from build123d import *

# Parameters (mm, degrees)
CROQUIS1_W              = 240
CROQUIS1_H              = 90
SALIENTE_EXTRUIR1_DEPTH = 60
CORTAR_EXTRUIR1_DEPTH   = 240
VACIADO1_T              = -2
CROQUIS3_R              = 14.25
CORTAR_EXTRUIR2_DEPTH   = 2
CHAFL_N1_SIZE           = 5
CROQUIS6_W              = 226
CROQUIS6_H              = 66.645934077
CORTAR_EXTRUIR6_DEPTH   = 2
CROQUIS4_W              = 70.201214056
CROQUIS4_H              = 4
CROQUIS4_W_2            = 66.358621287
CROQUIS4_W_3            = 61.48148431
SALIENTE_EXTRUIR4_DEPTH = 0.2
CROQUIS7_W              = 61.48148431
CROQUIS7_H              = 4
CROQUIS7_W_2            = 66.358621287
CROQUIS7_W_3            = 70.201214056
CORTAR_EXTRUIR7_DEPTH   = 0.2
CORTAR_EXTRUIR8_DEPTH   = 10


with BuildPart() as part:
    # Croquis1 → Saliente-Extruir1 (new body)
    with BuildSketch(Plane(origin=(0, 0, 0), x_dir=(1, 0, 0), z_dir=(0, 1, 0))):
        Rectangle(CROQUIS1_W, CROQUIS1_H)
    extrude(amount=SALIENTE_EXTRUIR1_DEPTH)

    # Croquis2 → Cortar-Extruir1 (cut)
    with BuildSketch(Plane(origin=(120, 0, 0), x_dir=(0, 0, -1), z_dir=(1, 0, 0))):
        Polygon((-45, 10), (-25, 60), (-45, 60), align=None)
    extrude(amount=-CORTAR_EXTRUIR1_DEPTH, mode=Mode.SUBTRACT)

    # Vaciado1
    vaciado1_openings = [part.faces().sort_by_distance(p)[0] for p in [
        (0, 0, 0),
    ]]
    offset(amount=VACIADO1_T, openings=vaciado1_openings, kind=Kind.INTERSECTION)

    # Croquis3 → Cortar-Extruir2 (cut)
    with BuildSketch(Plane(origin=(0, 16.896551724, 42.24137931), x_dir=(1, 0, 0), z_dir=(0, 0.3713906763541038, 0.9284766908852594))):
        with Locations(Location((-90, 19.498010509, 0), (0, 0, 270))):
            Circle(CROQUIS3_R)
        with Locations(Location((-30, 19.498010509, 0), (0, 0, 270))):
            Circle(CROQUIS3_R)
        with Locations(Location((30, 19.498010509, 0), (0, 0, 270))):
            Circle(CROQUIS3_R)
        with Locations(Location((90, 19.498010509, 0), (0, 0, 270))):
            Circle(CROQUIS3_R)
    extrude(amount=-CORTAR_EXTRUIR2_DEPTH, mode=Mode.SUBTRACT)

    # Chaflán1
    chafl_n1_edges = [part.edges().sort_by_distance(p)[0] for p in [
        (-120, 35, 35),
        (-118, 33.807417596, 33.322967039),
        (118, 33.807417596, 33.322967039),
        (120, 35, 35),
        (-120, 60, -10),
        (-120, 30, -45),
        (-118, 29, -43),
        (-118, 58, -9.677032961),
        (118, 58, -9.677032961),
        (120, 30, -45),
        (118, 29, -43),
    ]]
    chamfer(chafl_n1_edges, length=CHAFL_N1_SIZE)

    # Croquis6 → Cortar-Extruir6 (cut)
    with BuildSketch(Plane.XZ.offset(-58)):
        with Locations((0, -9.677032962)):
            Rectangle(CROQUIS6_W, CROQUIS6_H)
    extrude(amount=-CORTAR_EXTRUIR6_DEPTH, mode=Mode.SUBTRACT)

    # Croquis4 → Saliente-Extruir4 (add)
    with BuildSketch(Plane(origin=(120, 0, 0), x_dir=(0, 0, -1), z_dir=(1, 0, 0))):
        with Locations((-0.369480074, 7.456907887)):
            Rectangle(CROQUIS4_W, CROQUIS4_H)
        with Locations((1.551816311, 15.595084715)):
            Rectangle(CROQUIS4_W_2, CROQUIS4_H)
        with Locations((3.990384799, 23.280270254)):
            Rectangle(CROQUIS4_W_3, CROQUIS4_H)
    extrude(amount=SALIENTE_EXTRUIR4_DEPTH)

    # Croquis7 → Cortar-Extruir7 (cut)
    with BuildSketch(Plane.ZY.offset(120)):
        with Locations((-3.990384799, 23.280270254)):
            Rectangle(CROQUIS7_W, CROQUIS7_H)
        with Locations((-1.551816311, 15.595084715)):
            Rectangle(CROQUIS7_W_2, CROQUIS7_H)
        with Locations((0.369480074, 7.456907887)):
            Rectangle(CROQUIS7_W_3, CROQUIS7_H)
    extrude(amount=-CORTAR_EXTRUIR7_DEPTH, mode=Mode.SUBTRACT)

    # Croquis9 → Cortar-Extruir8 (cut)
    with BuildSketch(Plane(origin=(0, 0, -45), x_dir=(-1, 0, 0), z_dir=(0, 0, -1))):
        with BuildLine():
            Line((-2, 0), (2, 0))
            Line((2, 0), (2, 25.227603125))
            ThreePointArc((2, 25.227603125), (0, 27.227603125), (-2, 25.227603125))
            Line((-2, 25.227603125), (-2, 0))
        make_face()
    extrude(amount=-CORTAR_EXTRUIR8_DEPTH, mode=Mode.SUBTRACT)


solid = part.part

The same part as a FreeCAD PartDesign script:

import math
import FreeCAD as App
import Part
import Sketcher
from FreeCAD import Vector


def edges_at(feature, points):
    """Names of the edges that pass closest to the given points."""
    edges = feature.Shape.Edges
    near = lambda p: min(range(len(edges)), key=lambda i: edges[i].distToShape(Part.Vertex(*p))[0])
    return sorted({f"Edge{near(p) + 1}" for p in points})


def faces_at(feature, points):
    """Names of the faces that lie closest to the given points."""
    faces = feature.Shape.Faces
    near = lambda p: min(range(len(faces)), key=lambda i: faces[i].distToShape(Part.Vertex(*p))[0])
    return sorted({f"Face{near(p) + 1}" for p in points})


def add_polygon(sketch, points):
    """Adds a closed chain of lines whose ends are joined by coincident constraints."""
    first, n = sketch.GeometryCount, len(points)
    for a, b in zip(points, points[1:] + points[:1]):
        sketch.addGeometry(Part.LineSegment(App.Vector(*a, 0), App.Vector(*b, 0)), False)
    for i in range(n):
        sketch.addConstraint(Sketcher.Constraint("Coincident", first + i, 2, first + (i + 1) % n, 1))

doc = App.newDocument("Part")
body = doc.addObject("PartDesign::Body", "Body")

sketch1 = doc.addObject("Sketcher::SketchObject", "Sketch")
body.addObject(sketch1)
sketch1.AttachmentSupport = (doc.XZ_Plane, [""])
sketch1.MapMode = "FlatFace"
add_polygon(sketch1, [(-120, -45), (-120, 45), (120, 45), (120, -45)])
sketch1.addConstraint(Sketcher.Constraint("Vertical", 0))
sketch1.addConstraint(Sketcher.Constraint("Horizontal", 1))
sketch1.addConstraint(Sketcher.Constraint("Vertical", 2))
sketch1.addConstraint(Sketcher.Constraint("Horizontal", 3))
sketch1.addConstraint(Sketcher.Constraint("Symmetric", 0, 2, 2, 2, -1, 1))
sketch1.addConstraint(Sketcher.Constraint("DistanceX", 1, 1, 1, 2, 240.0))
sketch1.addConstraint(Sketcher.Constraint("DistanceY", 0, 1, 0, 2, 90.0))
pad1 = doc.addObject("PartDesign::Pad", "Pad")
body.addObject(pad1)
pad1.Profile = sketch1
pad1.Length = 60
pad1.Reversed = True

sketch2 = doc.addObject("Sketcher::SketchObject", "Sketch001")
body.addObject(sketch2)
sketch2.AttachmentSupport = (doc.YZ_Plane, [""])
sketch2.MapMode = "FlatFace"
sketch2.AttachmentOffset = App.Placement(Vector(0, 0, 120), App.Rotation())
add_polygon(sketch2, [(10, 45), (60, 25), (60, 45)])
sketch2.addConstraint(Sketcher.Constraint("Vertical", 1))
sketch2.addConstraint(Sketcher.Constraint("Horizontal", 2))
sketch2.addConstraint(Sketcher.Constraint("DistanceX", 2, 2, 2, 1, 50.0))
sketch2.addConstraint(Sketcher.Constraint("DistanceY", 1, 1, 1, 2, 20.0))
sketch2.addConstraint(Sketcher.Constraint("DistanceX", -1, 1, 0, 2, 60.0))
sketch2.addConstraint(Sketcher.Constraint("DistanceY", -1, 1, 0, 2, 25.0))
pocket1 = doc.addObject("PartDesign::Pocket", "Pocket")
body.addObject(pocket1)
pocket1.Profile = sketch2
pocket1.Length = 240
doc.recompute()

thickness = doc.addObject("PartDesign::Thickness", "Thickness")
body.addObject(thickness)
thickness.Base = (pocket1, faces_at(pocket1, [(0, 0, 0)]))
thickness.Value = 2
thickness.Reversed = True
thickness.Join = "Intersection"

sketch3 = doc.addObject("Sketcher::SketchObject", "Sketch002")
body.addObject(sketch3)
sketch3.Placement = App.Placement(Vector(0, 16.896552, 42.241379), App.Rotation(Vector(1, 0, 0), Vector(0, 0.928476691, -0.371390676), Vector(0, 0.371390676, 0.928476691), "ZXY"))
sketch3.addGeometry(Part.Circle(Vector(-90, 19, 0), Vector(0, 0, 1), 14), False)
sketch3.addGeometry(Part.Circle(Vector(-30, 19, 0), Vector(0, 0, 1), 14), False)
sketch3.addGeometry(Part.Circle(Vector(30, 19, 0), Vector(0, 0, 1), 14), False)
sketch3.addGeometry(Part.Circle(Vector(90, 19, 0), Vector(0, 0, 1), 14), False)
sketch3.addConstraint(Sketcher.Constraint("Equal", 0, 1))
sketch3.addConstraint(Sketcher.Constraint("Equal", 1, 2))
sketch3.addConstraint(Sketcher.Constraint("Equal", 2, 3))
sketch3.addConstraint(Sketcher.Constraint("Symmetric", 1, 3, 2, 3, -2))
sketch3.addConstraint(Sketcher.Constraint("Symmetric", 0, 3, 3, 3, -2))
sketch3.addConstraint(Sketcher.Constraint("Horizontal", 0, 3, 1, 3))
sketch3.addConstraint(Sketcher.Constraint("Diameter", 0, 28.5))
sketch3.addConstraint(Sketcher.Constraint("DistanceX", 0, 3, -1, 1, 90.0))
sketch3.addConstraint(Sketcher.Constraint("DistanceX", 1, 3, -1, 1, 30.0))
sketch3.addConstraint(Sketcher.Constraint("DistanceY", -1, 1, 0, 3, 19.498011))
pocket2 = doc.addObject("PartDesign::Pocket", "Pocket001")
body.addObject(pocket2)
pocket2.Profile = sketch3
pocket2.Length = 2
doc.recompute()

chamfer = doc.addObject("PartDesign::Chamfer", "Chamfer")
body.addObject(chamfer)
chamfer.Base = (pocket2, edges_at(pocket2, [
    (-120, 35, 35),
    (-118, 33.807, 33.323),
    (118, 33.807, 33.323),
    (120, 35, 35),
    (-120, 60, -10),
    (-120, 30, -45),
    (-118, 29, -43),
    (-118, 58, -9.677),
    (118, 58, -9.677),
    (120, 30, -45),
    (118, 29, -43),
]))
chamfer.Size = 5

sketch4 = doc.addObject("Sketcher::SketchObject", "Sketch003")
body.addObject(sketch4)
sketch4.AttachmentSupport = (doc.XZ_Plane, [""])
sketch4.MapMode = "FlatFace"
sketch4.AttachmentOffset = App.Placement(Vector(0, 0, -58), App.Rotation())
add_polygon(sketch4, [(-113, 24), (-113, -43), (113, -43), (113, 24)])
sketch4.addConstraint(Sketcher.Constraint("Vertical", 0))
sketch4.addConstraint(Sketcher.Constraint("Horizontal", 1))
sketch4.addConstraint(Sketcher.Constraint("Vertical", 2))
sketch4.addConstraint(Sketcher.Constraint("Horizontal", 3))
sketch4.addConstraint(Sketcher.Constraint("DistanceX", 1, 1, 1, 2, 226.0))
sketch4.addConstraint(Sketcher.Constraint("DistanceX", 0, 2, -1, 1, 113.0))
sketch4.addConstraint(Sketcher.Constraint("DistanceY", 0, 2, -1, 1, 43.0))
sketch4.addConstraint(Sketcher.Constraint("DistanceY", 0, 2, 0, 1, 66.645934))
pocket3 = doc.addObject("PartDesign::Pocket", "Pocket002")
body.addObject(pocket3)
pocket3.Profile = sketch4
pocket3.Length = 2

sketch5 = doc.addObject("Sketcher::SketchObject", "Sketch004")
body.addObject(sketch5)
sketch5.AttachmentSupport = (doc.YZ_Plane, [""])
sketch5.MapMode = "FlatFace"
sketch5.AttachmentOffset = App.Placement(Vector(0, 0, 120), App.Rotation())
add_polygon(sketch5, [(9.5, 35.5), (5.5, 35.5), (5.5, -34.7), (9.5, -34.7)])
add_polygon(sketch5, [(17.6, 31.6), (13.6, 31.6), (13.6, -34.7), (17.6, -34.7)])
add_polygon(sketch5, [(25.3, 26.8), (21.3, 26.8), (21.3, -34.7), (25.3, -34.7)])
sketch5.addConstraint(Sketcher.Constraint("Horizontal", 0))
sketch5.addConstraint(Sketcher.Constraint("Vertical", 1))
sketch5.addConstraint(Sketcher.Constraint("Horizontal", 2))
sketch5.addConstraint(Sketcher.Constraint("Vertical", 3))
sketch5.addConstraint(Sketcher.Constraint("Horizontal", 4))
sketch5.addConstraint(Sketcher.Constraint("Vertical", 5))
sketch5.addConstraint(Sketcher.Constraint("Horizontal", 6))
sketch5.addConstraint(Sketcher.Constraint("Vertical", 7))
sketch5.addConstraint(Sketcher.Constraint("Horizontal", 8))
sketch5.addConstraint(Sketcher.Constraint("Vertical", 9))
sketch5.addConstraint(Sketcher.Constraint("Horizontal", 10))
sketch5.addConstraint(Sketcher.Constraint("Vertical", 11))
sketch5.addConstraint(Sketcher.Constraint("Horizontal", 2, 2, 5, 2))
sketch5.addConstraint(Sketcher.Constraint("Horizontal", 6, 2, 9, 2))
sketch5.addConstraint(Sketcher.Constraint("Equal", 2, 4))
sketch5.addConstraint(Sketcher.Constraint("Equal", 6, 8))
sketch5.addConstraint(Sketcher.Constraint("DistanceX", 0, 2, 0, 1, 4.0))
sketch5.addConstraint(Sketcher.Constraint("DistanceY", 5, 2, 5, 1, 66.358621))
sketch5.addConstraint(Sketcher.Constraint("DistanceY", 1, 2, 1, 1, 70.201214))
sketch5.addConstraint(Sketcher.Constraint("DistanceY", 9, 2, 9, 1, 61.481484))
sketch5.addConstraint(Sketcher.Constraint("DistanceX", -1, 1, 8, 2, 21.28027))
sketch5.addConstraint(Sketcher.Constraint("DistanceX", -1, 1, 0, 2, 5.456908))
sketch5.addConstraint(Sketcher.Constraint("DistanceY", -1, 1, 0, 2, 35.470087))
sketch5.addConstraint(Sketcher.Constraint("DistanceX", -1, 1, 4, 2, 13.595085))
pad2 = doc.addObject("PartDesign::Pad", "Pad001")
body.addObject(pad2)
pad2.Profile = sketch5
pad2.Length = 0.2

sketch6 = doc.addObject("Sketcher::SketchObject", "Sketch005")
body.addObject(sketch6)
sketch6.AttachmentSupport = (doc.YZ_Plane, [""])
sketch6.MapMode = "FlatFace"
sketch6.AttachmentOffset = App.Placement(Vector(0, 0, -120), App.Rotation())
add_polygon(sketch6, [(25.3, -34.7), (21.3, -34.7), (21.3, 26.8), (25.3, 26.8)])
add_polygon(sketch6, [(17.6, -34.7), (13.6, -34.7), (13.6, 31.6), (17.6, 31.6)])
add_polygon(sketch6, [(9.5, -34.7), (5.5, -34.7), (5.5, 35.5), (9.5, 35.5)])
sketch6.addConstraint(Sketcher.Constraint("Horizontal", 0))
sketch6.addConstraint(Sketcher.Constraint("Vertical", 1))
sketch6.addConstraint(Sketcher.Constraint("Horizontal", 2))
sketch6.addConstraint(Sketcher.Constraint("Vertical", 3))
sketch6.addConstraint(Sketcher.Constraint("Horizontal", 4))
sketch6.addConstraint(Sketcher.Constraint("Vertical", 5))
sketch6.addConstraint(Sketcher.Constraint("Horizontal", 6))
sketch6.addConstraint(Sketcher.Constraint("Vertical", 7))
sketch6.addConstraint(Sketcher.Constraint("Horizontal", 8))
sketch6.addConstraint(Sketcher.Constraint("Vertical", 9))
sketch6.addConstraint(Sketcher.Constraint("Horizontal", 10))
sketch6.addConstraint(Sketcher.Constraint("Vertical", 11))
sketch6.addConstraint(Sketcher.Constraint("Horizontal", 3, 2, 4, 2))
sketch6.addConstraint(Sketcher.Constraint("Horizontal", 7, 2, 8, 2))
sketch6.addConstraint(Sketcher.Constraint("Equal", 2, 4))
sketch6.addConstraint(Sketcher.Constraint("Equal", 6, 8))
sketch6.addConstraint(Sketcher.Constraint("DistanceX", 0, 2, 0, 1, 4.0))
sketch6.addConstraint(Sketcher.Constraint("DistanceY", 5, 1, 5, 2, 66.358621))
sketch6.addConstraint(Sketcher.Constraint("DistanceY", 1, 1, 1, 2, 61.481484))
sketch6.addConstraint(Sketcher.Constraint("DistanceY", 9, 1, 9, 2, 70.201214))
sketch6.addConstraint(Sketcher.Constraint("DistanceX", -1, 1, 0, 2, 21.28027))
sketch6.addConstraint(Sketcher.Constraint("DistanceY", 0, 2, -1, 1, 34.731127))
sketch6.addConstraint(Sketcher.Constraint("DistanceX", -1, 1, 4, 2, 13.595085))
sketch6.addConstraint(Sketcher.Constraint("DistanceX", -1, 1, 8, 2, 5.456908))
pocket4 = doc.addObject("PartDesign::Pocket", "Pocket003")
body.addObject(pocket4)
pocket4.Profile = sketch6
pocket4.Length = 0.2
pocket4.Reversed = True

sketch7 = doc.addObject("Sketcher::SketchObject", "Sketch006")
body.addObject(sketch7)
sketch7.AttachmentSupport = (doc.XY_Plane, [""])
sketch7.MapMode = "FlatFace"
sketch7.AttachmentOffset = App.Placement(Vector(0, 0, -45), App.Rotation())
sketch7.addGeometry(Part.LineSegment(Vector(2, 0, 0), Vector(-2, 0, 0)), False)
sketch7.addGeometry(Part.LineSegment(Vector(-2, 0, 0), Vector(-2, 25.2, 0)), False)
sketch7.addGeometry(Part.ArcOfCircle(Part.Circle(Vector(0, 25.2, 0), Vector(0, 0, 1), 2), math.radians(0), math.radians(180)), False)
sketch7.addGeometry(Part.LineSegment(Vector(2, 25.2, 0), Vector(2, 0, 0)), False)
sketch7.addConstraint(Sketcher.Constraint("Coincident", 0, 2, 1, 1))
sketch7.addConstraint(Sketcher.Constraint("Tangent", 1, 2, 2, 2))
sketch7.addConstraint(Sketcher.Constraint("Tangent", 2, 1, 3, 1))
sketch7.addConstraint(Sketcher.Constraint("Coincident", 3, 2, 0, 1))
sketch7.addConstraint(Sketcher.Constraint("Horizontal", 0))
sketch7.addConstraint(Sketcher.Constraint("Vertical", 1))
sketch7.addConstraint(Sketcher.Constraint("Vertical", 3))
sketch7.addConstraint(Sketcher.Constraint("Symmetric", 0, 2, 3, 2, -1, 1))
sketch7.addConstraint(Sketcher.Constraint("Radius", 2, 2.0))
sketch7.addConstraint(Sketcher.Constraint("DistanceY", 1, 1, 1, 2, 25.227603))
pocket5 = doc.addObject("PartDesign::Pocket", "Pocket004")
body.addObject(pocket5)
pocket5.Profile = sketch7
pocket5.Length = 10
pocket5.Reversed = True

doc.recompute()
